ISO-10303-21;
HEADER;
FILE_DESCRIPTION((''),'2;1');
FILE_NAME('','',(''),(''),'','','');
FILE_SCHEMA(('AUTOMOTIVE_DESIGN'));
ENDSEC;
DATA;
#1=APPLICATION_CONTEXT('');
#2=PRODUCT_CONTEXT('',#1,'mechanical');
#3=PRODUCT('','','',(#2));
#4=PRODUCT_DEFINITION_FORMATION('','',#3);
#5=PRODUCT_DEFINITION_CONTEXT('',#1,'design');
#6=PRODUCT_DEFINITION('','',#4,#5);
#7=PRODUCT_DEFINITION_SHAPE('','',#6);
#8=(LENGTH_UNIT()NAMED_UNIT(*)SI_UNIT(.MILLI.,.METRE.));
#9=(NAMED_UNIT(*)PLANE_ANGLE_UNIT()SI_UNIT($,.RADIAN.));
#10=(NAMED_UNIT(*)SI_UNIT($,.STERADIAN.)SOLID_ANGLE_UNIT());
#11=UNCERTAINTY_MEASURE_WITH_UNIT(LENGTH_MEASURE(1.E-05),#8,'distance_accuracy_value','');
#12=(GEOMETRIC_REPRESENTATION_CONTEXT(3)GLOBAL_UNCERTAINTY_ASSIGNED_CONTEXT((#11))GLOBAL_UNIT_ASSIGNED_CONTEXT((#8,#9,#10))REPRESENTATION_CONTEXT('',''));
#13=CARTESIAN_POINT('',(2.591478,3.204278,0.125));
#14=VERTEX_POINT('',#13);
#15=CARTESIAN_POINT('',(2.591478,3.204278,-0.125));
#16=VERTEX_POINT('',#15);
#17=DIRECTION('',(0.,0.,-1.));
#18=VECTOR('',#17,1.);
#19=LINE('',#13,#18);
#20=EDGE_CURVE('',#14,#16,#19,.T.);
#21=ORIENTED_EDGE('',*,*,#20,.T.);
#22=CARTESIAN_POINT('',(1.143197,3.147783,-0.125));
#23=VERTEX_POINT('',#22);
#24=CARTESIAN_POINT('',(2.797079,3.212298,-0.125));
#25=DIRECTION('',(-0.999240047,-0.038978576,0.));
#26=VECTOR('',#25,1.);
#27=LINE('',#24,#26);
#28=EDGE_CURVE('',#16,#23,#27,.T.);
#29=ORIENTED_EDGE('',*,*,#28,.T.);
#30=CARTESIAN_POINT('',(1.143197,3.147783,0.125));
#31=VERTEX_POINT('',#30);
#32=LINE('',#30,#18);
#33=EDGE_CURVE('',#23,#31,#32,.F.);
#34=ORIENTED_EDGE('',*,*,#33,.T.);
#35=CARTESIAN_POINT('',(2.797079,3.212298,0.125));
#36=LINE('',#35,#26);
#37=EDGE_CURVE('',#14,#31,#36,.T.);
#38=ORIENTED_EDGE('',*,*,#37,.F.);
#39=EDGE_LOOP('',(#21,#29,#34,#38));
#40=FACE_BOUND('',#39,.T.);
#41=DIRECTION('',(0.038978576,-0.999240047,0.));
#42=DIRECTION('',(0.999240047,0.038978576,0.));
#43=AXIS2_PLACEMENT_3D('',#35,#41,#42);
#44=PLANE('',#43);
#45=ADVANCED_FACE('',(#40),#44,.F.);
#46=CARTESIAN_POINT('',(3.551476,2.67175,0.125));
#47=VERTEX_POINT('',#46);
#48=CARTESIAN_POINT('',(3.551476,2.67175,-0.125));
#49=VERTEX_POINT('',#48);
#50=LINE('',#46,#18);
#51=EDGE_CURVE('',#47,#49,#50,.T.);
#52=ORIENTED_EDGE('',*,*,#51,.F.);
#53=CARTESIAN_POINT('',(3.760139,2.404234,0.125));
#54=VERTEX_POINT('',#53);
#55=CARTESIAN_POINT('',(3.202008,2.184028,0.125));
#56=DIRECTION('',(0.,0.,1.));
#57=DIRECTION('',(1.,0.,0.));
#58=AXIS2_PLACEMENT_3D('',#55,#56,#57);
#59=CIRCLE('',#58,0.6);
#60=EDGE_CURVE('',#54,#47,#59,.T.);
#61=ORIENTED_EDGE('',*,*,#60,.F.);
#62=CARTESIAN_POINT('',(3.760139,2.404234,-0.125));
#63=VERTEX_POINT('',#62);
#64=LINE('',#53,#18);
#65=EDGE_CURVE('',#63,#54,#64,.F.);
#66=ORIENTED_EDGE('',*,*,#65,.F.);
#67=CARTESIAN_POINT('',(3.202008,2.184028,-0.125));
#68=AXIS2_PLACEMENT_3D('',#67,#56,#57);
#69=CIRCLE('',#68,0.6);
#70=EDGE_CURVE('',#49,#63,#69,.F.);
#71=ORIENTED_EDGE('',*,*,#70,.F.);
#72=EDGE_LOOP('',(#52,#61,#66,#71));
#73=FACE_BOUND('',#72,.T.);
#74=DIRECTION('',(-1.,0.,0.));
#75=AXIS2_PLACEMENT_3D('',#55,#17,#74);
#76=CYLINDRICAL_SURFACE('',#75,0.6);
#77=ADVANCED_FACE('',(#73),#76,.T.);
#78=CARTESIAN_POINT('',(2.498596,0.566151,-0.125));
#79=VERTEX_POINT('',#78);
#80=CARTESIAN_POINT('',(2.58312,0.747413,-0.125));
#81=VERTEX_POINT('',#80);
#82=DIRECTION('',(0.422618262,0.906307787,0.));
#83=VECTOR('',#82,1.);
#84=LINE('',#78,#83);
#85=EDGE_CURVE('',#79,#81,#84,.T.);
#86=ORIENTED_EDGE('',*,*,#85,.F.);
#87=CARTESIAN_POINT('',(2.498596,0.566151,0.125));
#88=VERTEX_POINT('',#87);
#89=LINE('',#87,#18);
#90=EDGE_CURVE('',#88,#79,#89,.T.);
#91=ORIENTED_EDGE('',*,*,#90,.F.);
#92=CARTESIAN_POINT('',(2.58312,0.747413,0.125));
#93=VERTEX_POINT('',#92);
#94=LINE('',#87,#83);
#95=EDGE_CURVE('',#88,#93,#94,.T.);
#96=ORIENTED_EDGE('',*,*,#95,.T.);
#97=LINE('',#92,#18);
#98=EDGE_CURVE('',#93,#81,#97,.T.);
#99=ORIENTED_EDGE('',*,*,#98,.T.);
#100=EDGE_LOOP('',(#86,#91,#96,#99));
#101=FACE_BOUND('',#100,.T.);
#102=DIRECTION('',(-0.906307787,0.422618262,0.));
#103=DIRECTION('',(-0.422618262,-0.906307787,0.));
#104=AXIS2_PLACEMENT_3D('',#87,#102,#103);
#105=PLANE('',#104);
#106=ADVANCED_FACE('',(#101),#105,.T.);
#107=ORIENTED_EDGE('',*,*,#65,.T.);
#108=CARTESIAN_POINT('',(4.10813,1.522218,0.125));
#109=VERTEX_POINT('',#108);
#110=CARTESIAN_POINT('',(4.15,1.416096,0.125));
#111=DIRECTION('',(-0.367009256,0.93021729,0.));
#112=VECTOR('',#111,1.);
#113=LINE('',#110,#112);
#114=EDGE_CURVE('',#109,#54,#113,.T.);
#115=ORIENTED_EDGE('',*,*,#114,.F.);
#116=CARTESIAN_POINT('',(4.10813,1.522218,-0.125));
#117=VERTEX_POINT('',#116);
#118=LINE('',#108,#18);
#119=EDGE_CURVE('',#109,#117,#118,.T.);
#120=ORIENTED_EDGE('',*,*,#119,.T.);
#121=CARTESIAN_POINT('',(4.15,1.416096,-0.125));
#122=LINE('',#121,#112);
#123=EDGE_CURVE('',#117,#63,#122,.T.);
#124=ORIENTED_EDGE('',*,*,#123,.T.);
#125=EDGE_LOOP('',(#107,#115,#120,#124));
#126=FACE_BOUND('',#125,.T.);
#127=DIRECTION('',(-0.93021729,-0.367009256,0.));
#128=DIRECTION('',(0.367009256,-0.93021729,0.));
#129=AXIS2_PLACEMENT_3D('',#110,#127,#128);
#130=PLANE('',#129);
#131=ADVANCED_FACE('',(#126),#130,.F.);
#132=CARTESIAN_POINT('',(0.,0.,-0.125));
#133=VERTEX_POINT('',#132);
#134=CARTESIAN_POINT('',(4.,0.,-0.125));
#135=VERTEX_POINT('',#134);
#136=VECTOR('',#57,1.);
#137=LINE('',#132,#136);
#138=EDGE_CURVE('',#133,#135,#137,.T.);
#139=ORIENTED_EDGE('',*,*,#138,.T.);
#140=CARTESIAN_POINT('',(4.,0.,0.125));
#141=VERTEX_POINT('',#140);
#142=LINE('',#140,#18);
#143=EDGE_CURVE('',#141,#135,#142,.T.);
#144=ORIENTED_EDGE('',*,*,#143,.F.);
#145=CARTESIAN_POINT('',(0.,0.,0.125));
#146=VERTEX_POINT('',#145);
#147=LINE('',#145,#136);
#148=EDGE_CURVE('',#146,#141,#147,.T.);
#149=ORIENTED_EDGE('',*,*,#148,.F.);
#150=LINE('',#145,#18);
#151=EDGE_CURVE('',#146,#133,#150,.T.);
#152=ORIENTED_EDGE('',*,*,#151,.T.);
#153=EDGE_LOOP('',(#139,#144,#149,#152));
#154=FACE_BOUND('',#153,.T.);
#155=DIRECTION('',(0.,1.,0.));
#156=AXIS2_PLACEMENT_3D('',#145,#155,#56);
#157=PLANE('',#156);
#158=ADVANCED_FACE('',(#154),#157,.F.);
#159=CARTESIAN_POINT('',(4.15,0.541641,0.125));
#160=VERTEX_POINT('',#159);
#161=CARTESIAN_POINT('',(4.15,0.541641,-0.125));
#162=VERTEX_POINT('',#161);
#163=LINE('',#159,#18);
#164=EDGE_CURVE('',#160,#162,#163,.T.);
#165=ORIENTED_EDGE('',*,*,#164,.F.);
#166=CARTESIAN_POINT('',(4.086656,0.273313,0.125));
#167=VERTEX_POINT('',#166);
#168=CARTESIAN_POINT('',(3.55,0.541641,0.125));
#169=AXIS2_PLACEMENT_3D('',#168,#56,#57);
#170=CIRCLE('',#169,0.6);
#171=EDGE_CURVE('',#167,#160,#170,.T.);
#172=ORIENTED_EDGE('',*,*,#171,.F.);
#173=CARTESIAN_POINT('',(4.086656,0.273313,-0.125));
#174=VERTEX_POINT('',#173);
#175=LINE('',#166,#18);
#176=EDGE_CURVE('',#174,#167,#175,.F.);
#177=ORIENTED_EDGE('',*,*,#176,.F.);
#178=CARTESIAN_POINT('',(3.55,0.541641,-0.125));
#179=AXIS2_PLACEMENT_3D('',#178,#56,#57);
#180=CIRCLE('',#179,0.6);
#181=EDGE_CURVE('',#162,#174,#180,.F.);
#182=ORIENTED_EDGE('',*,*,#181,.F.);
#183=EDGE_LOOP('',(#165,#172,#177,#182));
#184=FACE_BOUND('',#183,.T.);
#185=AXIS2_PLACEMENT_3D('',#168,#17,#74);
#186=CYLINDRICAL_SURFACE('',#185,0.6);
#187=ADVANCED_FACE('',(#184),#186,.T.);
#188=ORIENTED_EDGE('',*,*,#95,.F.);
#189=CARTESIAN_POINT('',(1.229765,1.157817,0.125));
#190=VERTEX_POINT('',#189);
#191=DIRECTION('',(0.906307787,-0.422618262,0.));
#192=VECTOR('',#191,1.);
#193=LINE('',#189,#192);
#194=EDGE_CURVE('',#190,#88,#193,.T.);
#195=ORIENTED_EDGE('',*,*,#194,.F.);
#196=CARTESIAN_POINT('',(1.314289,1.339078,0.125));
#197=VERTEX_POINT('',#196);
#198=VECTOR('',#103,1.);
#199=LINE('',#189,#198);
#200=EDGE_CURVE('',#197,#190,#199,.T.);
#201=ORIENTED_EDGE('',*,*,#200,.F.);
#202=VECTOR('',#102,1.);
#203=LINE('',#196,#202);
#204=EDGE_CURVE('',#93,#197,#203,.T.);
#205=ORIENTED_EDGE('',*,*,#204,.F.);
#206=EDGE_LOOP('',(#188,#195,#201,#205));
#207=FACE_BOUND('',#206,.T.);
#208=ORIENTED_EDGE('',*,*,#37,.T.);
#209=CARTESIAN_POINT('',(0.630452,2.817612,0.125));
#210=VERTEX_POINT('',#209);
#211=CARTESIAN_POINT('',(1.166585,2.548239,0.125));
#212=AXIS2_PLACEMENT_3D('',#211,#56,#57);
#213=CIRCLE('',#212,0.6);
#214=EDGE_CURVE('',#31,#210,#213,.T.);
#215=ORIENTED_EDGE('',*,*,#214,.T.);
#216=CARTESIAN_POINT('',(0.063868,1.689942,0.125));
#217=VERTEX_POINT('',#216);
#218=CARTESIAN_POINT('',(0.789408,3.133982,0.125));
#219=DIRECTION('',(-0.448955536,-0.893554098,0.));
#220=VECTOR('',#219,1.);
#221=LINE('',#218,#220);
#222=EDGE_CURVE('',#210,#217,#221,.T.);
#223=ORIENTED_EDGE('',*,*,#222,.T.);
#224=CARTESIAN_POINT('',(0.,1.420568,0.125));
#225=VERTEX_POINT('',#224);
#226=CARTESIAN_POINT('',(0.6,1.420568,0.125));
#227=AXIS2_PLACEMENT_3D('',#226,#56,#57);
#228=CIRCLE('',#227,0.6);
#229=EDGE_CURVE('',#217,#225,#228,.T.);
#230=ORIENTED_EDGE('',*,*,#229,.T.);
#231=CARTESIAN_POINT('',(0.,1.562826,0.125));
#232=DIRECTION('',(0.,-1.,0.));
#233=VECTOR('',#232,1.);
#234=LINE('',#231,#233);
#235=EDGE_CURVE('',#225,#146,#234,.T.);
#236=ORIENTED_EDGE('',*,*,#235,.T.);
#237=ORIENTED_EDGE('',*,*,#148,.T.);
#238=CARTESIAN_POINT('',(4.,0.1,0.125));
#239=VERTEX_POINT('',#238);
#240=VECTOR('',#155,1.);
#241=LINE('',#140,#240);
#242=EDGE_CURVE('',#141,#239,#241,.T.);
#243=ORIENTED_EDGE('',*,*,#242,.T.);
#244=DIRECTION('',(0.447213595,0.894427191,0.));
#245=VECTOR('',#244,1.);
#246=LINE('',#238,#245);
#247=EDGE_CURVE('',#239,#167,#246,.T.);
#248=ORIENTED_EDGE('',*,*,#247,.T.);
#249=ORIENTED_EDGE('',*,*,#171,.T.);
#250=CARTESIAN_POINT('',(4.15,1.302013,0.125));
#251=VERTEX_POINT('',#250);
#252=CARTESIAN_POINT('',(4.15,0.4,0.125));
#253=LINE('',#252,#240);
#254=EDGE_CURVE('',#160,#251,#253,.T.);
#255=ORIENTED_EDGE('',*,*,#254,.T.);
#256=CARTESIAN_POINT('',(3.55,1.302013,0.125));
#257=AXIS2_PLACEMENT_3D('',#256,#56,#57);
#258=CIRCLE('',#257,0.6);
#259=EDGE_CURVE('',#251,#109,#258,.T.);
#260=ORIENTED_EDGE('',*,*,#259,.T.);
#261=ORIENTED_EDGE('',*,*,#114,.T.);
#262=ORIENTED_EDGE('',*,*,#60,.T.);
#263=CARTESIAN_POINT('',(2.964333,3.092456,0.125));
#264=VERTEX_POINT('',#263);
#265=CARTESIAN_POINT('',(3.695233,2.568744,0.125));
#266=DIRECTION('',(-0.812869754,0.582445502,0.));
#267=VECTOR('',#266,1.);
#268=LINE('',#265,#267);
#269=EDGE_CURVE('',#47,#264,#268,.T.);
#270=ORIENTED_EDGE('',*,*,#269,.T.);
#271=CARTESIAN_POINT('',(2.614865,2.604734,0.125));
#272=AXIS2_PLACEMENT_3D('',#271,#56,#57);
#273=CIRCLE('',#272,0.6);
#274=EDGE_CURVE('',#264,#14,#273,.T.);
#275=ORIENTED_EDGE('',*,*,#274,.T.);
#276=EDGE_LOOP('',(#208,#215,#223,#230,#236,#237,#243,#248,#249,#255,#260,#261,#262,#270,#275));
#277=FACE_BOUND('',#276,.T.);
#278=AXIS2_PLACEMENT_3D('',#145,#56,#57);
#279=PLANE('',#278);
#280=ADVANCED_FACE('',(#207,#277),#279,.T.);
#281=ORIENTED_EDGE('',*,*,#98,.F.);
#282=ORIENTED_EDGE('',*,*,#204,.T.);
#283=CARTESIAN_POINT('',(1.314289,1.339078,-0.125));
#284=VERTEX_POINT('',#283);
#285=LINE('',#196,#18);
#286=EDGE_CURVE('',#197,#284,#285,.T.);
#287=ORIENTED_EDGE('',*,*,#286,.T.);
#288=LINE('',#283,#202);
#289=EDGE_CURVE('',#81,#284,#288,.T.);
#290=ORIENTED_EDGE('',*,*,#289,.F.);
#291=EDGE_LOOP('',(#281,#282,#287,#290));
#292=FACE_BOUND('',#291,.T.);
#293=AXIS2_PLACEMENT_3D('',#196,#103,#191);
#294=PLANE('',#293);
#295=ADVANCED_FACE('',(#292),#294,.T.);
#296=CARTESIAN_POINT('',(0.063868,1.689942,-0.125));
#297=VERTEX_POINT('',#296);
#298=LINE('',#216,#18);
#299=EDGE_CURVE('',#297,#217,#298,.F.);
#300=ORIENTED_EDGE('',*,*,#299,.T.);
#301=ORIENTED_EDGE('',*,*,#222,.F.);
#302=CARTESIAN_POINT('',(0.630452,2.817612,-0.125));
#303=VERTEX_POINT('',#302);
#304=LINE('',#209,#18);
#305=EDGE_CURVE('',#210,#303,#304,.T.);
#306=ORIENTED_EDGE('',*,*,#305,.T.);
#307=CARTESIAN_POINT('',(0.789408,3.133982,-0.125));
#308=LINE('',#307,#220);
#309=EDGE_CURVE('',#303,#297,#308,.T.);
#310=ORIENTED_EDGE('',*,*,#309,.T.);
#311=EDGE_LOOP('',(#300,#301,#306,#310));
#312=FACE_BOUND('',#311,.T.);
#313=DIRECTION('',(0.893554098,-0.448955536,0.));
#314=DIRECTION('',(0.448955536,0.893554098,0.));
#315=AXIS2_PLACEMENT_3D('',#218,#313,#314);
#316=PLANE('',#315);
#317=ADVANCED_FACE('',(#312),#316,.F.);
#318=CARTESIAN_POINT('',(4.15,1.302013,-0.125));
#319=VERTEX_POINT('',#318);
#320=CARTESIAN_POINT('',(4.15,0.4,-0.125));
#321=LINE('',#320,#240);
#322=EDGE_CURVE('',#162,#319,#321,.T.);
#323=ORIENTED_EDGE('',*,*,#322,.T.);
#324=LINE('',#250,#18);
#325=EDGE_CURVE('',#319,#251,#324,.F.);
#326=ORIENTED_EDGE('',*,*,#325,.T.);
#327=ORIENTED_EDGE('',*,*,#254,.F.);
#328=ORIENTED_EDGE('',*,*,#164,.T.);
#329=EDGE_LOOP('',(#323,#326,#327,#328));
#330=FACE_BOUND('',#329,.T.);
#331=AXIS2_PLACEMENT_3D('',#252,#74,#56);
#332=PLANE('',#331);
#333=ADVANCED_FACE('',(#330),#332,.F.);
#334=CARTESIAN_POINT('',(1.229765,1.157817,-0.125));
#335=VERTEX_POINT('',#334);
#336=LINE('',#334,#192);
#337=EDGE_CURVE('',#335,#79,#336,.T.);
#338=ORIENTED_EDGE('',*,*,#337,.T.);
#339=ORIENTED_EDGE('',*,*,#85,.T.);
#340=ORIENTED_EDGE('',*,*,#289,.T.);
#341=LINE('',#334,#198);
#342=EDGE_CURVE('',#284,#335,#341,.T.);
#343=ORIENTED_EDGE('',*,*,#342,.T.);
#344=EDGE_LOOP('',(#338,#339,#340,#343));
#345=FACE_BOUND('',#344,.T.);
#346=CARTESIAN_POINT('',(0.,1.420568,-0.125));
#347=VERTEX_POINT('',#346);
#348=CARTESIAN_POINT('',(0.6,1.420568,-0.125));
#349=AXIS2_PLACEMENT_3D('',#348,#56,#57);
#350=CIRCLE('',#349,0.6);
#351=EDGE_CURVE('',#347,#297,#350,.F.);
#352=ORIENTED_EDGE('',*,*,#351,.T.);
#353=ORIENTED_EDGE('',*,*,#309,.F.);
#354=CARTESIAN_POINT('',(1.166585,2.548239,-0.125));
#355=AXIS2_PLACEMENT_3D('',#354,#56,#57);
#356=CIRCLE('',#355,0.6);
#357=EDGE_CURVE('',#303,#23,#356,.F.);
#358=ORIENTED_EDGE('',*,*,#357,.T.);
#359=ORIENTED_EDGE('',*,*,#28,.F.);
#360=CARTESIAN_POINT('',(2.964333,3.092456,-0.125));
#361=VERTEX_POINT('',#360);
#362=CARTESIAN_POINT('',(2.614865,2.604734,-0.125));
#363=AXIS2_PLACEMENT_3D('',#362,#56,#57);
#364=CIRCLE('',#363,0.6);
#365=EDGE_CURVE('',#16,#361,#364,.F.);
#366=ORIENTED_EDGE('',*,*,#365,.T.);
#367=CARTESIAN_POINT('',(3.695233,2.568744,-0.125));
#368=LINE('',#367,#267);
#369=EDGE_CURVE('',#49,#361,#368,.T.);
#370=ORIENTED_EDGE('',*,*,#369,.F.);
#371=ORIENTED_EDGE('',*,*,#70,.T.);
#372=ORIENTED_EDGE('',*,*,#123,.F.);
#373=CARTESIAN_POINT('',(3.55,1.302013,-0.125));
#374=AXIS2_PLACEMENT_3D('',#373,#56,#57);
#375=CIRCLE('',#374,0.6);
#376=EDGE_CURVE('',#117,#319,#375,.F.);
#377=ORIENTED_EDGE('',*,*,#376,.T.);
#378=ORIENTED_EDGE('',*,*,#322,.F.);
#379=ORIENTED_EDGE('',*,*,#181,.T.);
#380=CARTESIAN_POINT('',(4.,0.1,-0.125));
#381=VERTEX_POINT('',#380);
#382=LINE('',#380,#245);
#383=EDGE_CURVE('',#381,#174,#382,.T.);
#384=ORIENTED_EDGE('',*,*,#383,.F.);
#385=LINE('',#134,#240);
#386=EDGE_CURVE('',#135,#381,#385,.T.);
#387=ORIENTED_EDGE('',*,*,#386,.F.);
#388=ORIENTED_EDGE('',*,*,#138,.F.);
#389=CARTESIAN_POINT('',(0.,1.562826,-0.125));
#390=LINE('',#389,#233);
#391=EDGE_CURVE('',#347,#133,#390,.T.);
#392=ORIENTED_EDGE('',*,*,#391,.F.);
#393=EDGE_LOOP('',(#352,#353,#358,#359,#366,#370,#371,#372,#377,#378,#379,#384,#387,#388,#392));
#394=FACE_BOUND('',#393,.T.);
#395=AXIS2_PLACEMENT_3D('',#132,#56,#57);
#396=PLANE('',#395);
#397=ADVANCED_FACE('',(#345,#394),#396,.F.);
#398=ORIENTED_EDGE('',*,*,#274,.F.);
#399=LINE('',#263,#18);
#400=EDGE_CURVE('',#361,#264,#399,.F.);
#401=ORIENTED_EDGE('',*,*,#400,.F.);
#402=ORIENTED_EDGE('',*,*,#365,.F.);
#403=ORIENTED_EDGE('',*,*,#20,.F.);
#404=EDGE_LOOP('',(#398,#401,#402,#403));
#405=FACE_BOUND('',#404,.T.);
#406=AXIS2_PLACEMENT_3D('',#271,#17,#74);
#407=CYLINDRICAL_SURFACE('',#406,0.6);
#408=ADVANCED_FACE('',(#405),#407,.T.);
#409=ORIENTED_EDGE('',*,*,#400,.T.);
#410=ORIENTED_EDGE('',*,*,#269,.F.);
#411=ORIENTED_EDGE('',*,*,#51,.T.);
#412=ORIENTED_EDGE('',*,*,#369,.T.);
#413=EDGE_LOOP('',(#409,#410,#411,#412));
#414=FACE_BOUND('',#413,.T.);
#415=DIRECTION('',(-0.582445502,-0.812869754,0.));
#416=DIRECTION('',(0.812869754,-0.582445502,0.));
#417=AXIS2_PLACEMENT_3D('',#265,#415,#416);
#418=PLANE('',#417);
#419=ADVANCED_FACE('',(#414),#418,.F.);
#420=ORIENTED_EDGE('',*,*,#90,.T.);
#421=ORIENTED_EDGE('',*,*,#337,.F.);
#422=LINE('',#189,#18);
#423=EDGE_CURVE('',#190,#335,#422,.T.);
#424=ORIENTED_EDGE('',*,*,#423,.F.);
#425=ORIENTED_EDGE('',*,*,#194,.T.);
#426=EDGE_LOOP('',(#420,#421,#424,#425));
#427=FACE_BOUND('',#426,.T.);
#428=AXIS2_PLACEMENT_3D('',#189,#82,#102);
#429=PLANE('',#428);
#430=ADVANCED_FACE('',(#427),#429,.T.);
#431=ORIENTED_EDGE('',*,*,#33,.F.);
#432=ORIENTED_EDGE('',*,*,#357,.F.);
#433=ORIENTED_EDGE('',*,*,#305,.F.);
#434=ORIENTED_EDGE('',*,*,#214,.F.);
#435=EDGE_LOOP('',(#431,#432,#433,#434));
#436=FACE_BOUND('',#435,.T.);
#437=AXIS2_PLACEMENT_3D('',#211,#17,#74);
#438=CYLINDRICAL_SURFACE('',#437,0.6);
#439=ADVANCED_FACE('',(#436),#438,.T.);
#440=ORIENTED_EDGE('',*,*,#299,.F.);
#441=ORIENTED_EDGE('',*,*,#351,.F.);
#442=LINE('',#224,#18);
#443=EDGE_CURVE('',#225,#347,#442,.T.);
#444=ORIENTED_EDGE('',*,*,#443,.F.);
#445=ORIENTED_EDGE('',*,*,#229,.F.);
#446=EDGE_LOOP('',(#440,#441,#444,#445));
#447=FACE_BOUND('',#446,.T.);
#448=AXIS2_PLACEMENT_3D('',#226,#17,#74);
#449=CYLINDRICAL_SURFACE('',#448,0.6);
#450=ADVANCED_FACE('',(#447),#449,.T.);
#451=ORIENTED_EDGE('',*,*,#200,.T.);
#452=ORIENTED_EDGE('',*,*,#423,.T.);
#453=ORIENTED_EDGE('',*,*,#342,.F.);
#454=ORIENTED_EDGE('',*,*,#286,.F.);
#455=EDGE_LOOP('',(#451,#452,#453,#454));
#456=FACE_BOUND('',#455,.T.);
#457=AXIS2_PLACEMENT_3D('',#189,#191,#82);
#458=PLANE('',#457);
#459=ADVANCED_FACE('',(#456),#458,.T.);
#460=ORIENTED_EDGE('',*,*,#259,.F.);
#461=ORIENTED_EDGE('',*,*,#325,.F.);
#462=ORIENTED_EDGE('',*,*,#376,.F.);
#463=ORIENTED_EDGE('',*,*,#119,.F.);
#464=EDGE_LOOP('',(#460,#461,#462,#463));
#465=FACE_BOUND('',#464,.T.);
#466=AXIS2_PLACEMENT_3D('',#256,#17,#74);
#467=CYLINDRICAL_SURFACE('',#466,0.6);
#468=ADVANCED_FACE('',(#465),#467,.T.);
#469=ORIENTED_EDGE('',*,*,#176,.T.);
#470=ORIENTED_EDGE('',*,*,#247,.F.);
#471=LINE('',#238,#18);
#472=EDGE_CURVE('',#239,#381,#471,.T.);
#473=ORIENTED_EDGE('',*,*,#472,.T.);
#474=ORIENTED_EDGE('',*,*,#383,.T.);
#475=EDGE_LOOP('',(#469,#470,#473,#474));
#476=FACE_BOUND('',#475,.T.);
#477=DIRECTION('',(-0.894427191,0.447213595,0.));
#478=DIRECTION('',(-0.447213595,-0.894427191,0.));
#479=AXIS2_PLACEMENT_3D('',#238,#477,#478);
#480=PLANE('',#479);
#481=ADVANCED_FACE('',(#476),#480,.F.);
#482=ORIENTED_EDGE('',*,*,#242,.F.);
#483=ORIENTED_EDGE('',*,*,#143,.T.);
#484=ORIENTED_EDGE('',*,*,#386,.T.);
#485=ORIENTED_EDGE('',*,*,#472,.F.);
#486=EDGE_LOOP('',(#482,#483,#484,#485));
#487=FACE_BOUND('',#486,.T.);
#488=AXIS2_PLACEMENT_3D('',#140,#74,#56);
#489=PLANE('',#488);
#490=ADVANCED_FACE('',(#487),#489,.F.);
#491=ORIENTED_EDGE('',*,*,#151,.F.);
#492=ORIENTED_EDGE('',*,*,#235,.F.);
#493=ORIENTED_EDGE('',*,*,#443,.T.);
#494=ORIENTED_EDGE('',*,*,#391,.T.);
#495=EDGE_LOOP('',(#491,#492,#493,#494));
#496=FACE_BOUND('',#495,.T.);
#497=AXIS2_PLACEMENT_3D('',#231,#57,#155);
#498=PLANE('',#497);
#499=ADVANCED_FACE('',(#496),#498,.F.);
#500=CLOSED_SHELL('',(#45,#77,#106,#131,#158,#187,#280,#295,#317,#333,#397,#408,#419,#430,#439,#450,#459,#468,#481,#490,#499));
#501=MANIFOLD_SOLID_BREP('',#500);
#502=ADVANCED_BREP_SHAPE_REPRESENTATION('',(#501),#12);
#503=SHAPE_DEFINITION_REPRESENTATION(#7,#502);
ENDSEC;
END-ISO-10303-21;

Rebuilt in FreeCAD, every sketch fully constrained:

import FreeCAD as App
import Part
import Sketcher
from FreeCAD import Vector
Q = App.Units.Quantity


def edges_at(feature, points):
    """Names of the edges that pass closest to the given points."""
    edges = feature.Shape.Edges
    near = lambda p: min(range(len(edges)), key=lambda i: edges[i].distToShape(Part.Vertex(*p))[0])
    return sorted({f"Edge{near(p) + 1}" for p in points})


def add_polygon(sketch, points):
    """Adds a closed chain of lines whose ends are joined by coincident constraints."""
    first, n = sketch.GeometryCount, len(points)
    for a, b in zip(points, points[1:] + points[:1]):
        sketch.addGeometry(Part.LineSegment(App.Vector(*a, 0), App.Vector(*b, 0)), False)
    for i in range(n):
        sketch.addConstraint(Sketcher.Constraint("Coincident", first + i, 2, first + (i + 1) % n, 1))

doc = App.newDocument("Part")
body = doc.addObject("PartDesign::Body", "Body")

# Sketch on XY plane
sketch1 = doc.addObject("Sketcher::SketchObject", "Sketch")
body.addObject(sketch1)
sketch1.AttachmentSupport = (doc.XY_Plane, [""])
sketch1.MapMode = "FlatFace"
add_polygon(sketch1, [(0, 0), (4, 0), (4, 0.1), (4.15, 0.4), (4.15, 1.42), (3.7, 2.57), (2.8, 3.21), (0.79, 3.13), (0, 1.56)])  # lines 0-8
add_polygon(sketch1, [(2.5, 0.57), (1.23, 1.16), (1.31, 1.34), (2.58, 0.75)])  # lines 9-12
sketch1.addConstraint([
    Sketcher.Constraint("Horizontal", 0),
    Sketcher.Constraint("Vertical", 1),
    Sketcher.Constraint("Vertical", 3),
    Sketcher.Constraint("Vertical", 8),
    Sketcher.Constraint("Coincident", 8, 2, -1, 1),
    Sketcher.Constraint("Perpendicular", 9, 10),
    Sketcher.Constraint("Perpendicular", 10, 11),
    Sketcher.Constraint("Perpendicular", 11, 12),
    Sketcher.Constraint("DistanceX", 0, 1, 0, 2, Q("4 mm")),
    Sketcher.Constraint("Angle", 9, Q("155 deg")),
    Sketcher.Constraint("DistanceY", 1, 1, 1, 2, Q("0.1 mm")),
    Sketcher.Constraint("Distance", 9, Q("1.4 mm")),
    Sketcher.Constraint("Distance", 10, Q("0.2 mm")),
    Sketcher.Constraint("DistanceY", -1, 1, 2, 2, Q("0.4 mm")),
    Sketcher.Constraint("DistanceX", -1, 1, 2, 2, Q("4.15 mm")),
    Sketcher.Constraint("DistanceY", -1, 1, 5, 2, Q("3.212298 mm")),
    Sketcher.Constraint("DistanceY", 3, 2, 5, 2, Q("1.796202 mm")),
    Sketcher.Constraint("DistanceY", 8, 2, 8, 1, Q("1.562826 mm")),
    Sketcher.Constraint("DistanceX", -1, 1, 5, 2, Q("2.797079 mm")),
    Sketcher.Constraint("DistanceX", -1, 1, 6, 2, Q("0.789408 mm")),
    Sketcher.Constraint("DistanceX", -1, 1, 10, 2, Q("1.314289 mm")),
    Sketcher.Constraint("DistanceY", -1, 1, 10, 2, Q("1.339078 mm")),
    Sketcher.Constraint("DistanceY", 4, 2, 6, 2, Q("0.565238 mm")),
    Sketcher.Constraint("Distance", 4, Q("1.239117 mm")),
    Sketcher.Constraint("Distance", 5, Q("1.104917 mm")),
])
pad1 = doc.addObject("PartDesign::Pad", "Pad")
body.addObject(pad1)
pad1.Profile = sketch1
pad1.Length = 0.25
pad1.Midplane = True
doc.recompute()

fillet = doc.addObject("PartDesign::Fillet", "Fillet")
body.addObject(fillet)
fillet.Base = (pad1, edges_at(pad1, [
    (0, 1.563, 0),
    (0.789, 3.134, 0),
    (2.797, 3.212, 0),
    (3.695, 2.569, 0),
    (4.15, 1.416, 0),
    (4.15, 0.4, 0),
]))
fillet.Radius = 0.6

doc.recompute()
